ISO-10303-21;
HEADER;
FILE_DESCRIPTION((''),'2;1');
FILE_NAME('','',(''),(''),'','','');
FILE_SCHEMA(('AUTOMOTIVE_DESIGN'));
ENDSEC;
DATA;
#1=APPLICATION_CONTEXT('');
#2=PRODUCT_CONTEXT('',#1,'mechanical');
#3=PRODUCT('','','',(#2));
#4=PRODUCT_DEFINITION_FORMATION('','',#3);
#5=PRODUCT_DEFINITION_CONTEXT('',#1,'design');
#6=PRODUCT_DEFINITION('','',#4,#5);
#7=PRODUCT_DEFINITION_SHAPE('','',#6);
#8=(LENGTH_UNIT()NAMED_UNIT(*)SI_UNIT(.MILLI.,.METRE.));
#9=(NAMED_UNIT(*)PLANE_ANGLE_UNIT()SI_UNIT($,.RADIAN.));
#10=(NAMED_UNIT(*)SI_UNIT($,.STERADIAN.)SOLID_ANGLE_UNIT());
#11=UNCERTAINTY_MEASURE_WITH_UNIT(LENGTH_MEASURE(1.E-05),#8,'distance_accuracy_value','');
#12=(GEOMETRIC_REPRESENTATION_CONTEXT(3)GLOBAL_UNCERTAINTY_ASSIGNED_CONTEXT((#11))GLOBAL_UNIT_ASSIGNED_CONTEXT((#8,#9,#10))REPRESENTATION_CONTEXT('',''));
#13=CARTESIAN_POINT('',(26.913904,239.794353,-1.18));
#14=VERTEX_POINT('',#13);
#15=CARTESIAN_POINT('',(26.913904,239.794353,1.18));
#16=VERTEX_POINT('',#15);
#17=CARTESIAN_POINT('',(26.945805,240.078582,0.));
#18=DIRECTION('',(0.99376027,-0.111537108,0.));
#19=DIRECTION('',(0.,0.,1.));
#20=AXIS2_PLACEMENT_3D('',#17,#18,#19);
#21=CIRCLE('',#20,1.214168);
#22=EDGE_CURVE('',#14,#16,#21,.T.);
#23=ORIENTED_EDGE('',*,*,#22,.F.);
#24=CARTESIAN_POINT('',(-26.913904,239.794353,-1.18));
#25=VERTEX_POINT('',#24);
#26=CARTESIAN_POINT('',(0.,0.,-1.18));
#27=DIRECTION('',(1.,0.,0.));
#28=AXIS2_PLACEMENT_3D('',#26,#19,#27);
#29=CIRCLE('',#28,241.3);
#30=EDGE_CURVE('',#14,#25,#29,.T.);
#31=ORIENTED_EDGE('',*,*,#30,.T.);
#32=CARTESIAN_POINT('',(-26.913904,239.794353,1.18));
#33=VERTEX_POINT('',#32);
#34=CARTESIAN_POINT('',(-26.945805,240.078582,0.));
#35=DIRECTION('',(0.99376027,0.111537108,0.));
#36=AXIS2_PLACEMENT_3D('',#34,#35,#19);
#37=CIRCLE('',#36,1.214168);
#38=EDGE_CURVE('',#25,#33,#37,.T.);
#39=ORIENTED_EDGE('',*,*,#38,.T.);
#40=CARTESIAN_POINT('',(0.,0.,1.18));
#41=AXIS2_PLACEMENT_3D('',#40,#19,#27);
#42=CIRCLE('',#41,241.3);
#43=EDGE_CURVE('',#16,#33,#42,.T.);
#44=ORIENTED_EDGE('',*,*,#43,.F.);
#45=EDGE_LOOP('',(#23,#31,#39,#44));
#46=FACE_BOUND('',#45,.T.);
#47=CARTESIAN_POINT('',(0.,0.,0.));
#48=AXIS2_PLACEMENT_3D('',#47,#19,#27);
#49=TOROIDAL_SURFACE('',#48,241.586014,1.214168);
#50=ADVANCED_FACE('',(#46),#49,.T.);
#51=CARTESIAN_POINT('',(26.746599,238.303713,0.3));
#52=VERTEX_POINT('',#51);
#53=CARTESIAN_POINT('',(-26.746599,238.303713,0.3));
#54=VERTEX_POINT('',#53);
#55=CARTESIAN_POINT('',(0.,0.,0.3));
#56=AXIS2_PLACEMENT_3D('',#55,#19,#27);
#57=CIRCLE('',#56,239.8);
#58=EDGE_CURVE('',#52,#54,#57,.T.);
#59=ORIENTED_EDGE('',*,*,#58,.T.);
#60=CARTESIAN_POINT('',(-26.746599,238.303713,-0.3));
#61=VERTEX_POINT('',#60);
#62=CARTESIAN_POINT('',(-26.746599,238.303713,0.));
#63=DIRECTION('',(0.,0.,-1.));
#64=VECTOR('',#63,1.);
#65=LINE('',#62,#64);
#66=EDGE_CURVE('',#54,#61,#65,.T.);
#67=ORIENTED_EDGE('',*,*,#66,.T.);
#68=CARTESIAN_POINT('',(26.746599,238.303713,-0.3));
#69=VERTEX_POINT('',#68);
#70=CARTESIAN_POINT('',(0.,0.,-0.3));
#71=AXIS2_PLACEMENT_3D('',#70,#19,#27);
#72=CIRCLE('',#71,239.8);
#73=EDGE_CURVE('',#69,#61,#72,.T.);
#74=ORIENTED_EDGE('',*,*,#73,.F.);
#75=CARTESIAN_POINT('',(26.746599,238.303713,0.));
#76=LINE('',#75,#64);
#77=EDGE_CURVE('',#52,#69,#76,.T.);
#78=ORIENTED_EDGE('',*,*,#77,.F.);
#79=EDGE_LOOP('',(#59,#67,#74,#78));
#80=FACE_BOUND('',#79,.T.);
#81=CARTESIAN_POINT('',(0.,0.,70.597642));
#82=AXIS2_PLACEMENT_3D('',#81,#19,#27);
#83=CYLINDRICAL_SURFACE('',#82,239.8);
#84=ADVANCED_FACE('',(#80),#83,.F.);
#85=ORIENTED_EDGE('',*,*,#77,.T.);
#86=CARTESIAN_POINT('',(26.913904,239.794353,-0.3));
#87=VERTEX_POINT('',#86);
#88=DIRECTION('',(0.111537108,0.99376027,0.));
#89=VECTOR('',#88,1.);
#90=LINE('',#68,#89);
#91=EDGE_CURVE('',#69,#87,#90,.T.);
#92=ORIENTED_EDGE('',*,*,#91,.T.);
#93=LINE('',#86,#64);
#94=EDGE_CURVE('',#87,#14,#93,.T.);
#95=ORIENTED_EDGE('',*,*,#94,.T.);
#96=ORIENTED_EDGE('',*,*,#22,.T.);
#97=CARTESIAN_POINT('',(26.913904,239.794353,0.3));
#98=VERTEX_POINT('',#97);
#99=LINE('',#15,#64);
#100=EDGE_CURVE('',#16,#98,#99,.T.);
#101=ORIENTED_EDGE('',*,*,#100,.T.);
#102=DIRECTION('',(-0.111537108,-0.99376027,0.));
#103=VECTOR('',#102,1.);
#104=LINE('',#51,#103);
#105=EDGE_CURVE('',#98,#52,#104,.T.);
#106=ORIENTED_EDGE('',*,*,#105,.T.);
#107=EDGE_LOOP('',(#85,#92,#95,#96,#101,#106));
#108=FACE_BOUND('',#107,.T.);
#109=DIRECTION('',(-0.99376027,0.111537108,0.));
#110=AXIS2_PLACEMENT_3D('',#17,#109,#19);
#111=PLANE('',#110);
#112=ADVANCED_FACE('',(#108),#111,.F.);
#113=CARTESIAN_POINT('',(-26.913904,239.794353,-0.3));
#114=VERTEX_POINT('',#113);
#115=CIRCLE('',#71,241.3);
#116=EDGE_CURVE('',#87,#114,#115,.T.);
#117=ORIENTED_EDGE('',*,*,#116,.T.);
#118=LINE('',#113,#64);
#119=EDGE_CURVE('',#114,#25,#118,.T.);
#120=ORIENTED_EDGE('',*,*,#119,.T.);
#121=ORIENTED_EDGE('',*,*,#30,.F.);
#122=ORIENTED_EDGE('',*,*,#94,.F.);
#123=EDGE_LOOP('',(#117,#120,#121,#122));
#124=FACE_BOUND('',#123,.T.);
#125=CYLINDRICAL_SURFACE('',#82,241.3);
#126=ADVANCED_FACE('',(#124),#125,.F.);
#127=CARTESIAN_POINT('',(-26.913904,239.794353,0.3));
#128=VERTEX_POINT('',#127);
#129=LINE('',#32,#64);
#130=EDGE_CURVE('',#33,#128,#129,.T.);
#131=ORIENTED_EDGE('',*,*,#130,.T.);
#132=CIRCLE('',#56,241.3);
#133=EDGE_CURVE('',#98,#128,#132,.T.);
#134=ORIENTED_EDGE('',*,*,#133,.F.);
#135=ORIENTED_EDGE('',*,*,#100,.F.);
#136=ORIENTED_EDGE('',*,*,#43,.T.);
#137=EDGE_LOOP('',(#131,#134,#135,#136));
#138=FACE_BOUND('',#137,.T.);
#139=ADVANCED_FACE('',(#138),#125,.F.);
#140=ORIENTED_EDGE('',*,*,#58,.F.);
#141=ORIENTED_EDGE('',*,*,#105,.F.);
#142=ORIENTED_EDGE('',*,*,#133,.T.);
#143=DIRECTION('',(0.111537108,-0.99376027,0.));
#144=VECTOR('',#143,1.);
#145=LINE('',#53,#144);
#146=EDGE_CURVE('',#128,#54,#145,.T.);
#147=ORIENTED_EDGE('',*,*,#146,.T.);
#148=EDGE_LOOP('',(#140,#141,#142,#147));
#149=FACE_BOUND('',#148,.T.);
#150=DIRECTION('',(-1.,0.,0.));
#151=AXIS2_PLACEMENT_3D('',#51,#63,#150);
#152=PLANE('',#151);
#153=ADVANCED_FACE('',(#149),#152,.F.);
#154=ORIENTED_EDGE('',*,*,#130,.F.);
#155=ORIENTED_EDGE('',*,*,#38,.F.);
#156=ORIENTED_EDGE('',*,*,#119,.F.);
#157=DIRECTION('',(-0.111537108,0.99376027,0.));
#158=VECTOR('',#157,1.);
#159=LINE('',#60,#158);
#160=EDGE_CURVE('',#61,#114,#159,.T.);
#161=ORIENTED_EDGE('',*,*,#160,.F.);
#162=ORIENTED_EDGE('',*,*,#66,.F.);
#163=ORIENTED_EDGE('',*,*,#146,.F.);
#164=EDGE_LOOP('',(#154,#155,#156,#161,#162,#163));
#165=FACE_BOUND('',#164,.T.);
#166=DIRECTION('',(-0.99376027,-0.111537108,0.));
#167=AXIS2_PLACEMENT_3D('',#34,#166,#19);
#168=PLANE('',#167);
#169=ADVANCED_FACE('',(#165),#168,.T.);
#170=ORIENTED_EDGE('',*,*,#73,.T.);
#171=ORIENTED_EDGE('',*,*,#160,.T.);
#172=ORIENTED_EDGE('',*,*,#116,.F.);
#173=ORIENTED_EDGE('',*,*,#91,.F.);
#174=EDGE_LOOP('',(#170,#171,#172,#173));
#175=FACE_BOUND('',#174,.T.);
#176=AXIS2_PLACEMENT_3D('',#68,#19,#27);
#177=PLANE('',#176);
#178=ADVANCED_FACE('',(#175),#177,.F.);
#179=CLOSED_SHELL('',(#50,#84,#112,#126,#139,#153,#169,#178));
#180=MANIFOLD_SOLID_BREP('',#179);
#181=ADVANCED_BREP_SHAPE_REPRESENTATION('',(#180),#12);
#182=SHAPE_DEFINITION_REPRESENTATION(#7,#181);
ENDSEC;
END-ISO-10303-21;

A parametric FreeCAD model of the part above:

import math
import FreeCAD as App
import Part
import Sketcher
from FreeCAD import Vector

doc = App.newDocument("Part")
params = doc.addObject("Spreadsheet::Sheet", "Params")
for row, (alias, value) in enumerate([
    ("sketch1_width", "1.5 mm"),
    ("sketch1_height", "0.6 mm"),
    ("sketch1_height2", "0.88 mm"),
    ("revolution_angle", "6.403931 deg"),
    ("sketch2_width", "1.5 mm"),
    ("sketch2_height", "0.6 mm"),
    ("sketch2_height2", "0.88 mm"),
    ("revolution2_angle", "6.403931 deg"),
], start=1):
    params.set(f"A{row}", alias)
    params.set(f"B{row}", "=" + value)
    params.setAlias(f"B{row}", alias)

body = doc.addObject("PartDesign::Body", "Body")

# Sketch on YZ plane
sketch1 = body.newObject("Sketcher::SketchObject", "Sketch")
sketch1.AttachmentSupport = (doc.getObject("YZ_Plane"), [""])
sketch1.MapMode = "FlatFace"
sketch1.addGeometry([
    Part.LineSegment(Vector(239.8, -0.3, 0), Vector(241.3, -0.3, 0)),  # 0
    Part.LineSegment(Vector(241.3, -0.3, 0), Vector(241.3, -1.2, 0)),  # 1
    Part.ArcOfCircle(Part.Circle(Vector(241.6, 0, 0), Vector(0, 0, 1), 1.2), math.radians(-104), math.radians(104)),  # 2
    Part.LineSegment(Vector(241.3, 1.2, 0), Vector(241.3, 0.3, 0)),  # 3
    Part.LineSegment(Vector(241.3, 0.3, 0), Vector(239.8, 0.3, 0)),  # 4
    Part.LineSegment(Vector(239.8, 0.3, 0), Vector(239.8, -0.3, 0)),  # 5
], False)
sketch1.addConstraint([
    Sketcher.Constraint("Coincident", 0, 2, 1, 1),
    Sketcher.Constraint("Coincident", 1, 2, 2, 1),
    Sketcher.Constraint("Coincident", 2, 2, 3, 1),
    Sketcher.Constraint("Coincident", 3, 2, 4, 1),
    Sketcher.Constraint("Coincident", 4, 2, 5, 1),
    Sketcher.Constraint("Coincident", 5, 2, 0, 1),
    Sketcher.Constraint("Horizontal", 0),
    Sketcher.Constraint("Vertical", 1),
    Sketcher.Constraint("Vertical", 3),
    Sketcher.Constraint("Horizontal", 4),
    Sketcher.Constraint("Vertical", 5),
    Sketcher.Constraint("Symmetric", 1, 2, 2, 2, -1),
    Sketcher.Constraint("Equal", 1, 3),
    Sketcher.Constraint("DistanceX", 0, 1, 0, 2, 1.5),
    Sketcher.Constraint("DistanceY", 5, 2, 5, 1, 0.6),
    Sketcher.Constraint("DistanceY", 1, 2, 1, 1, 0.88),
    Sketcher.Constraint("DistanceX", -1, 1, 0, 2, 241.3),
    Sketcher.Constraint("Radius", 2, 1.214168),
])
sketch1.setExpression("Constraints[13]", "Params.sketch1_width")
sketch1.setExpression("Constraints[14]", "Params.sketch1_height")
sketch1.setExpression("Constraints[15]", "Params.sketch1_height2")
revolution = body.newObject("PartDesign::Revolution", "Revolution")
revolution.Profile = sketch1
revolution.ReferenceAxis = (sketch1, ["V_Axis"])
revolution.setExpression("Angle", "Params.revolution_angle")
revolution.Reversed = True

# Sketch on YZ plane
sketch2 = body.newObject("Sketcher::SketchObject", "Sketch001")
sketch2.AttachmentSupport = (doc.getObject("YZ_Plane"), [""])
sketch2.MapMode = "FlatFace"
sketch2.addGeometry([
    Part.LineSegment(Vector(239.8, -0.3, 0), Vector(241.3, -0.3, 0)),  # 0
    Part.LineSegment(Vector(241.3, -0.3, 0), Vector(241.3, -1.2, 0)),  # 1
    Part.ArcOfCircle(Part.Circle(Vector(241.6, 0, 0), Vector(0, 0, 1), 1.2), math.radians(-104), math.radians(104)),  # 2
    Part.LineSegment(Vector(241.3, 1.2, 0), Vector(241.3, 0.3, 0)),  # 3
    Part.LineSegment(Vector(241.3, 0.3, 0), Vector(239.8, 0.3, 0)),  # 4
    Part.LineSegment(Vector(239.8, 0.3, 0), Vector(239.8, -0.3, 0)),  # 5
], False)
sketch2.addConstraint([
    Sketcher.Constraint("Coincident", 0, 2, 1, 1),
    Sketcher.Constraint("Coincident", 1, 2, 2, 1),
    Sketcher.Constraint("Coincident", 2, 2, 3, 1),
    Sketcher.Constraint("Coincident", 3, 2, 4, 1),
    Sketcher.Constraint("Coincident", 4, 2, 5, 1),
    Sketcher.Constraint("Coincident", 5, 2, 0, 1),
    Sketcher.Constraint("Horizontal", 0),
    Sketcher.Constraint("Vertical", 1),
    Sketcher.Constraint("Vertical", 3),
    Sketcher.Constraint("Horizontal", 4),
    Sketcher.Constraint("Vertical", 5),
    Sketcher.Constraint("Symmetric", 1, 2, 2, 2, -1),
    Sketcher.Constraint("Equal", 1, 3),
    Sketcher.Constraint("DistanceX", 0, 1, 0, 2, 1.5),
    Sketcher.Constraint("DistanceY", 5, 2, 5, 1, 0.6),
    Sketcher.Constraint("DistanceY", 1, 2, 1, 1, 0.88),
    Sketcher.Constraint("DistanceX", -1, 1, 0, 2, 241.3),
    Sketcher.Constraint("Radius", 2, 1.214168),
])
sketch2.setExpression("Constraints[13]", "Params.sketch2_width")
sketch2.setExpression("Constraints[14]", "Params.sketch2_height")
sketch2.setExpression("Constraints[15]", "Params.sketch2_height2")
revolution2 = body.newObject("PartDesign::Revolution", "Revolution001")
revolution2.Profile = sketch2
revolution2.ReferenceAxis = (sketch2, ["V_Axis"])
revolution2.setExpression("Angle", "Params.revolution2_angle")

doc.recompute()
